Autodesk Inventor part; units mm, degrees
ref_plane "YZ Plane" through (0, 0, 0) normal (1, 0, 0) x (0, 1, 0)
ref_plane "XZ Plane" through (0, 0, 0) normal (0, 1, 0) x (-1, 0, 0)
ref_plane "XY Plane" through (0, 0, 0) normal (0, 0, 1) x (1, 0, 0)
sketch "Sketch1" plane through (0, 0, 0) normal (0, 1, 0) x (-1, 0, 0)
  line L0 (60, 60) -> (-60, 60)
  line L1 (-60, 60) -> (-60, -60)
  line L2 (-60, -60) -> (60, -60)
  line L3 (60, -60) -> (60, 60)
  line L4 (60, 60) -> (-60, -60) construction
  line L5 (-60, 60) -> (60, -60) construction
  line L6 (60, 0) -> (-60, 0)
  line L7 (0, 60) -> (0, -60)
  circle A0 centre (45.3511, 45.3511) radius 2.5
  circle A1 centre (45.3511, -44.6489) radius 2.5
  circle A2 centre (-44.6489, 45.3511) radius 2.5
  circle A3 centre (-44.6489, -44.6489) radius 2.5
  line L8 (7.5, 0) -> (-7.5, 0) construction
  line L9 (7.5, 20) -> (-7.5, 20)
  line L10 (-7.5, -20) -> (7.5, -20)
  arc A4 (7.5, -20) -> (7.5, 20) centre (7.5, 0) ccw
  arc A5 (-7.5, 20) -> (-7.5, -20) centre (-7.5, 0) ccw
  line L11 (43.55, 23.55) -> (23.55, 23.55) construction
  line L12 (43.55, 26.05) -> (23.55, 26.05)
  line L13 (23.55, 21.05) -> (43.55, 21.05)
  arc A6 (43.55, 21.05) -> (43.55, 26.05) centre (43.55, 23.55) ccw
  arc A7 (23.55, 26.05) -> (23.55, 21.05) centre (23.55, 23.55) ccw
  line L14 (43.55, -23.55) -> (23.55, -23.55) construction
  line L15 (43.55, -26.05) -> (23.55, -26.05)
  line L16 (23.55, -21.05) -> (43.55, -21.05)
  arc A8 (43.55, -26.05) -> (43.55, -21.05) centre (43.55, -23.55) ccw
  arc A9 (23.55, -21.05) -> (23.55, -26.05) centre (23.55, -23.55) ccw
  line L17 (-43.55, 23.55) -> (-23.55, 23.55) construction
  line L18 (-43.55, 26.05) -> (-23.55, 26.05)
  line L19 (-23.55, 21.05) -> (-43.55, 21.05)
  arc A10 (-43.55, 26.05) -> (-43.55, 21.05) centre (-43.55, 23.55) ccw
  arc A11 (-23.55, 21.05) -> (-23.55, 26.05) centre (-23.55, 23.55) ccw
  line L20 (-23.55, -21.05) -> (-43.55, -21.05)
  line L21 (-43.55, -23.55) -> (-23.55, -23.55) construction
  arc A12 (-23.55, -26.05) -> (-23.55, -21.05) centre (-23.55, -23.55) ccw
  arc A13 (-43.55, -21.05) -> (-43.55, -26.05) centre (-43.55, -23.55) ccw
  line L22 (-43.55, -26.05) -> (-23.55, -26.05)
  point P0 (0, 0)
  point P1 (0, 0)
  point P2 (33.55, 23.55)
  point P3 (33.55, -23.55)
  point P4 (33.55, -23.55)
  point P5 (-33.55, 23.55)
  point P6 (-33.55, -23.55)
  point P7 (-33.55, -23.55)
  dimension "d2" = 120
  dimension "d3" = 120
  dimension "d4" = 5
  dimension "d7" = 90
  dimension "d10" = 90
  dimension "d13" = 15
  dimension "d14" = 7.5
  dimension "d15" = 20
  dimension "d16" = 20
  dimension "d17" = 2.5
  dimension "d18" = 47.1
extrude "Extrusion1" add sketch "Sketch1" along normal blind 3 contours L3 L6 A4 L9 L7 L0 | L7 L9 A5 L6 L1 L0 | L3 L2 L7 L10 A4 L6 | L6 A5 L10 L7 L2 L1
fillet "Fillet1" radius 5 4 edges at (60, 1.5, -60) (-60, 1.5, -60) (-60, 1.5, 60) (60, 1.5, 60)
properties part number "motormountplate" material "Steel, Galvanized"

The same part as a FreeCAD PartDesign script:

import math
import FreeCAD as App
import Part
import Sketcher

V = App.Vector


def edges_at(feature, points):
    """Names of the edges that pass closest to the given points."""
    edges = feature.Shape.Edges
    near = lambda p: min(range(len(edges)), key=lambda i: edges[i].distToShape(Part.Vertex(*p))[0])
    return sorted({f"Edge{near(p) + 1}" for p in points})

doc = App.newDocument("Part")
body = doc.addObject("PartDesign::Body", "Body")

# Sketch on XZ plane
sketch1 = body.newObject("Sketcher::SketchObject", "Sketch")
sketch1.AttachmentSupport = (doc.getObject("XZ_Plane"), [""])
sketch1.MapMode = "FlatFace"
sketch1.addGeometry(Part.LineSegment(V(-60, 60, 0), V(60, 60, 0)), False)
sketch1.addGeometry(Part.LineSegment(V(60, 60, 0), V(60, -60, 0)), False)
sketch1.addGeometry(Part.LineSegment(V(60, -60, 0), V(-60, -60, 0)), False)
sketch1.addGeometry(Part.LineSegment(V(-60, -60, 0), V(-60, 60, 0)), False)
sketch1.addGeometry(Part.ArcOfCircle(Part.Circle(V(-7.5, 0, 0), V(0, 0, 1), 20), math.radians(90), math.radians(270)), False)
sketch1.addGeometry(Part.LineSegment(V(-7.5, -20, 0), V(7.5, -20, 0)), False)
sketch1.addGeometry(Part.ArcOfCircle(Part.Circle(V(7.5, 0, 0), V(0, 0, 1), 20), math.radians(-90), math.radians(90)), False)
sketch1.addGeometry(Part.LineSegment(V(7.5, 20, 0), V(-7.5, 20, 0)), False)
sketch1.addGeometry(Part.LineSegment(V(-23.6, 26.1, 0), V(-43.5, 26.1, 0)), False)
sketch1.addGeometry(Part.ArcOfCircle(Part.Circle(V(-43.5, 23.6, 0), V(0, 0, 1), 2.5), math.radians(90), math.radians(270)), False)
sketch1.addGeometry(Part.LineSegment(V(-43.5, 21.1, 0), V(-23.6, 21.1, 0)), False)
sketch1.addGeometry(Part.ArcOfCircle(Part.Circle(V(-23.6, 23.6, 0), V(0, 0, 1), 2.5), math.radians(-90), math.radians(90)), False)
sketch1.addGeometry(Part.Circle(V(-45.4, 45.4, 0), V(0, 0, 1), 2.5), False)
sketch1.addGeometry(Part.LineSegment(V(-43.5, -26.1, 0), V(-23.6, -26.1, 0)), False)
sketch1.addGeometry(Part.ArcOfCircle(Part.Circle(V(-23.6, -23.6, 0), V(0, 0, 1), 2.5), math.radians(-90), math.radians(90)), False)
sketch1.addGeometry(Part.LineSegment(V(-23.6, -21.1, 0), V(-43.5, -21.1, 0)), False)
sketch1.addGeometry(Part.ArcOfCircle(Part.Circle(V(-43.5, -23.6, 0), V(0, 0, 1), 2.5), math.radians(90), math.radians(270)), False)
sketch1.addGeometry(Part.Circle(V(-45.4, -44.6, 0), V(0, 0, 1), 2.5), False)
sketch1.addGeometry(Part.Circle(V(44.6, 45.4, 0), V(0, 0, 1), 2.5), False)
sketch1.addGeometry(Part.ArcOfCircle(Part.Circle(V(43.5, 23.6, 0), V(0, 0, 1), 2.5), math.radians(-90), math.radians(90)), False)
sketch1.addGeometry(Part.LineSegment(V(43.5, 26.1, 0), V(23.6, 26.1, 0)), False)
sketch1.addGeometry(Part.ArcOfCircle(Part.Circle(V(23.6, 23.6, 0), V(0, 0, 1), 2.5), math.radians(90), math.radians(270)), False)
sketch1.addGeometry(Part.LineSegment(V(23.6, 21.1, 0), V(43.5, 21.1, 0)), False)
sketch1.addGeometry(Part.LineSegment(V(23.6, -26.1, 0), V(43.5, -26.1, 0)), False)
sketch1.addGeometry(Part.ArcOfCircle(Part.Circle(V(43.5, -23.6, 0), V(0, 0, 1), 2.5), math.radians(-90), math.radians(90)), False)
sketch1.addGeometry(Part.LineSegment(V(43.5, -21.1, 0), V(23.6, -21.1, 0)), False)
sketch1.addGeometry(Part.ArcOfCircle(Part.Circle(V(23.6, -23.6, 0), V(0, 0, 1), 2.5), math.radians(90), math.radians(270)), False)
sketch1.addGeometry(Part.Circle(V(44.6, -44.6, 0), V(0, 0, 1), 2.5), False)
sketch1.addConstraint(Sketcher.Constraint("Coincident", 0, 2, 1, 1))
sketch1.addConstraint(Sketcher.Constraint("Coincident", 1, 2, 2, 1))
sketch1.addConstraint(Sketcher.Constraint("Coincident", 2, 2, 3, 1))
sketch1.addConstraint(Sketcher.Constraint("Coincident", 3, 2, 0, 1))
sketch1.addConstraint(Sketcher.Constraint("Tangent", 4, 2, 5, 1))
sketch1.addConstraint(Sketcher.Constraint("Tangent", 5, 2, 6, 1))
sketch1.addConstraint(Sketcher.Constraint("Tangent", 6, 2, 7, 1))
sketch1.addConstraint(Sketcher.Constraint("Tangent", 7, 2, 4, 1))
sketch1.addConstraint(Sketcher.Constraint("Tangent", 8, 2, 9, 1))
sketch1.addConstraint(Sketcher.Constraint("Tangent", 9, 2, 10, 1))
sketch1.addConstraint(Sketcher.Constraint("Tangent", 10, 2, 11, 1))
sketch1.addConstraint(Sketcher.Constraint("Tangent", 11, 2, 8, 1))
sketch1.addConstraint(Sketcher.Constraint("Tangent", 13, 2, 14, 1))
sketch1.addConstraint(Sketcher.Constraint("Tangent", 14, 2, 15, 1))
sketch1.addConstraint(Sketcher.Constraint("Tangent", 15, 2, 16, 1))
sketch1.addConstraint(Sketcher.Constraint("Tangent", 16, 2, 13, 1))
sketch1.addConstraint(Sketcher.Constraint("Tangent", 19, 2, 20, 1))
sketch1.addConstraint(Sketcher.Constraint("Tangent", 20, 2, 21, 1))
sketch1.addConstraint(Sketcher.Constraint("Tangent", 21, 2, 22, 1))
sketch1.addConstraint(Sketcher.Constraint("Tangent", 22, 2, 19, 1))
sketch1.addConstraint(Sketcher.Constraint("Tangent", 23, 2, 24, 1))
sketch1.addConstraint(Sketcher.Constraint("Tangent", 24, 2, 25, 1))
sketch1.addConstraint(Sketcher.Constraint("Tangent", 25, 2, 26, 1))
sketch1.addConstraint(Sketcher.Constraint("Tangent", 26, 2, 23, 1))
sketch1.addConstraint(Sketcher.Constraint("Horizontal", 0))
sketch1.addConstraint(Sketcher.Constraint("Vertical", 1))
sketch1.addConstraint(Sketcher.Constraint("Horizontal", 2))
sketch1.addConstraint(Sketcher.Constraint("Vertical", 3))
sketch1.addConstraint(Sketcher.Constraint("Horizontal", 5))
sketch1.addConstraint(Sketcher.Constraint("Horizontal", 7))
sketch1.addConstraint(Sketcher.Constraint("Horizontal", 8))
sketch1.addConstraint(Sketcher.Constraint("Horizontal", 10))
sketch1.addConstraint(Sketcher.Constraint("Horizontal", 13))
sketch1.addConstraint(Sketcher.Constraint("Horizontal", 15))
sketch1.addConstraint(Sketcher.Constraint("Horizontal", 20))
sketch1.addConstraint(Sketcher.Constraint("Horizontal", 22))
sketch1.addConstraint(Sketcher.Constraint("Horizontal", 23))
sketch1.addConstraint(Sketcher.Constraint("Horizontal", 25))
sketch1.addConstraint(Sketcher.Constraint("Equal", 11, 12))
sketch1.addConstraint(Sketcher.Constraint("Equal", 12, 14))
sketch1.addConstraint(Sketcher.Constraint("Equal", 16, 17))
sketch1.addConstraint(Sketcher.Constraint("Equal", 17, 18))
sketch1.addConstraint(Sketcher.Constraint("Equal", 18, 19))
sketch1.addConstraint(Sketcher.Constraint("Equal", 21, 24))
sketch1.addConstraint(Sketcher.Constraint("Equal", 26, 27))
sketch1.addConstraint(Sketcher.Constraint("Symmetric", 4, 3, 6, 3, -1, 1))
sketch1.addConstraint(Sketcher.Constraint("Symmetric", 16, 3, 19, 3, -1, 1))
sketch1.addConstraint(Sketcher.Constraint("Symmetric", 9, 3, 24, 3, -1, 1))
sketch1.addConstraint(Sketcher.Constraint("Symmetric", 0, 2, 2, 2, -1, 1))
sketch1.addConstraint(Sketcher.Constraint("Symmetric", 9, 3, 19, 3, -2))
sketch1.addConstraint(Sketcher.Constraint("Horizontal", 12, 3, 18, 3))
sketch1.addConstraint(Sketcher.Constraint("Horizontal", 17, 3, 27, 3))
sketch1.addConstraint(Sketcher.Constraint("Vertical", 11, 3, 14, 3))
sketch1.addConstraint(Sketcher.Constraint("Vertical", 12, 3, 17, 3))
sketch1.addConstraint(Sketcher.Constraint("Vertical", 21, 3, 26, 3))
sketch1.addConstraint(Sketcher.Constraint("Vertical", 18, 3, 27, 3))
sketch1.addConstraint(Sketcher.Constraint("Equal", 15, 20))
sketch1.addConstraint(Sketcher.Constraint("Equal", 2, 1))
sketch1.addConstraint(Sketcher.Constraint("Diameter", 12, 5.0))
sketch1.addConstraint(Sketcher.Constraint("Radius", 4, 20.0))
sketch1.addConstraint(Sketcher.Constraint("DistanceX", 0, 1, 0, 2, 120.0))
sketch1.addConstraint(Sketcher.Constraint("DistanceX", 5, 1, 5, 2, 15.0))
sketch1.addConstraint(Sketcher.Constraint("DistanceX", 8, 2, 8, 1, 20.0))
sketch1.addConstraint(Sketcher.Constraint("DistanceX", 12, 3, 18, 3, 90.0))
sketch1.addConstraint(Sketcher.Constraint("DistanceY", 14, 3, 11, 3, 47.1))
sketch1.addConstraint(Sketcher.Constraint("DistanceX", 11, 3, 21, 3, 47.1))
sketch1.addConstraint(Sketcher.Constraint("DistanceX", 12, 3, -1, 1, 45.351))
sketch1.addConstraint(Sketcher.Constraint("DistanceY", -1, 1, 12, 3, 45.351))
sketch1.addConstraint(Sketcher.Constraint("DistanceY", 17, 3, -1, 1, 44.649))
pad1 = body.newObject("PartDesign::Pad", "Pad")
pad1.Profile = sketch1
pad1.Length = 3
pad1.Reversed = True
doc.recompute()

fillet = body.newObject("PartDesign::Fillet", "Fillet")
fillet.Base = (pad1, edges_at(pad1, [
    (60, 1.5, -60),
    (-60, 1.5, -60),
    (-60, 1.5, 60),
    (60, 1.5, 60),
]))
fillet.Radius = 5

doc.recompute()
